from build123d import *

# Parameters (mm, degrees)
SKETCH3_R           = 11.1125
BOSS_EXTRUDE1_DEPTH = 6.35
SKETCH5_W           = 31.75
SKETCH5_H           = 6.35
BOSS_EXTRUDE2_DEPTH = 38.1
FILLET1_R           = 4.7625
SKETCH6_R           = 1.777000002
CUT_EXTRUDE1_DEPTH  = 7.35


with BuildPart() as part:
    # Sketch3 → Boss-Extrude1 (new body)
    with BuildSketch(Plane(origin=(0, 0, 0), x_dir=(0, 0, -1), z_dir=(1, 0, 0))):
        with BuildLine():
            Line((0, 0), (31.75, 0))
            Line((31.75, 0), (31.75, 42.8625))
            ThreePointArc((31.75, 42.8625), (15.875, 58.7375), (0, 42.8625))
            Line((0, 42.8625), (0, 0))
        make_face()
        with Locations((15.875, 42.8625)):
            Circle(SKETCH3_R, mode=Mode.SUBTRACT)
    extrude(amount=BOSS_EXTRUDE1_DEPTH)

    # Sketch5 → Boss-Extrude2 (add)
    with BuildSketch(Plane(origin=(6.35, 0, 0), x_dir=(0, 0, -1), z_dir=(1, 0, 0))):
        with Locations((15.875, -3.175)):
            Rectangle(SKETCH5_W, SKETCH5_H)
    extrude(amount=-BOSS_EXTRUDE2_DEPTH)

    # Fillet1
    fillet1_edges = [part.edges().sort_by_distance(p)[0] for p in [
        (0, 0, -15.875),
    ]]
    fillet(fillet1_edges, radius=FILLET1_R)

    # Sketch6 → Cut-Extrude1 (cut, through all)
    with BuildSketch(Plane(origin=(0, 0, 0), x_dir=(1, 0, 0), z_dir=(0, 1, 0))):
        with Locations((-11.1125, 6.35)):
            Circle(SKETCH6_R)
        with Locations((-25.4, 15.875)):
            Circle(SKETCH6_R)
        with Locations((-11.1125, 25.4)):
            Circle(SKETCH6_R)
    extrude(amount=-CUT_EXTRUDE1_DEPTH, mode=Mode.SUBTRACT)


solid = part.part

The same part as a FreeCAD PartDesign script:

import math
import FreeCAD as App
import Part
import Sketcher
Q = App.Units.Quantity


def edges_at(feature, points):
    """Names of the edges that pass closest to the given points."""
    edges = feature.Shape.Edges
    near = lambda p: min(range(len(edges)), key=lambda i: edges[i].distToShape(Part.Vertex(*p))[0])
    return sorted({f"Edge{near(p) + 1}" for p in points})


def add_polygon(sketch, points):
    """Adds a closed chain of lines whose ends are joined by coincident constraints."""
    first, n = sketch.GeometryCount, len(points)
    for a, b in zip(points, points[1:] + points[:1]):
        sketch.addGeometry(Part.LineSegment(App.Vector(*a, 0), App.Vector(*b, 0)), False)
    for i in range(n):
        sketch.addConstraint(Sketcher.Constraint("Coincident", first + i, 2, first + (i + 1) % n, 1))

doc = App.newDocument("Part")
body = doc.addObject("PartDesign::Body", "Body")

# Sketch on YZ plane
sketch1 = doc.addObject("Sketcher::SketchObject", "Sketch")
body.addObject(sketch1)
sketch1.AttachmentSupport = (doc.YZ_Plane, [""])
sketch1.MapMode = "FlatFace"
sketch1.addGeometry(Part.LineSegment(App.Vector(0, 0, 0), App.Vector(0, -32, 0)), False)
sketch1.addGeometry(Part.LineSegment(App.Vector(0, -32, 0), App.Vector(43, -32, 0)), False)
sketch1.addGeometry(Part.ArcOfCircle(Part.Circle(App.Vector(43, -16, 0), App.Vector(0, 0, 1), 16), math.radians(-90), math.radians(90)), False)
sketch1.addGeometry(Part.LineSegment(App.Vector(43, 0, 0), App.Vector(0, 0, 0)), False)
sketch1.addGeometry(Part.Circle(App.Vector(43, -16, 0), App.Vector(0, 0, 1), 11), False)
sketch1.addConstraint(Sketcher.Constraint("Coincident", 0, 2, 1, 1))
sketch1.addConstraint(Sketcher.Constraint("Tangent", 1, 2, 2, 1))
sketch1.addConstraint(Sketcher.Constraint("Tangent", 2, 2, 3, 1))
sketch1.addConstraint(Sketcher.Constraint("Coincident", 3, 2, 0, 1))
sketch1.addConstraint(Sketcher.Constraint("Vertical", 0))
sketch1.addConstraint(Sketcher.Constraint("Horizontal", 1))
sketch1.addConstraint(Sketcher.Constraint("Horizontal", 3))
sketch1.addConstraint(Sketcher.Constraint("Coincident", 3, 2, -1, 1))
sketch1.addConstraint(Sketcher.Constraint("Coincident", 4, 3, 2, 3))
sketch1.addConstraint(Sketcher.Constraint("Diameter", 4, Q("0.875 in")))
sketch1.addConstraint(Sketcher.Constraint("Radius", 2, Q("0.625 in")))
sketch1.addConstraint(Sketcher.Constraint("DistanceX", 1, 1, 1, 2, Q("1.6875 in")))
pad1 = doc.addObject("PartDesign::Pad", "Pad")
body.addObject(pad1)
pad1.Profile = sketch1
pad1.Length = Q("0.25 in")

# Sketch on YZ plane
sketch2 = doc.addObject("Sketcher::SketchObject", "Sketch001")
body.addObject(sketch2)
sketch2.AttachmentSupport = (doc.YZ_Plane, [""])
sketch2.MapMode = "FlatFace"
sketch2.AttachmentOffset = App.Placement(App.Vector(0, 0, 0.25 * 25.4), App.Rotation())
add_polygon(sketch2, [(0, 0), (-6, 0), (-6, -32), (0, -32)])  # lines 0-3
sketch2.addConstraint(Sketcher.Constraint("Horizontal", 0))
sketch2.addConstraint(Sketcher.Constraint("Vertical", 1))
sketch2.addConstraint(Sketcher.Constraint("Horizontal", 2))
sketch2.addConstraint(Sketcher.Constraint("Vertical", 3))
sketch2.addConstraint(Sketcher.Constraint("Coincident", 3, 2, -1, 1))
sketch2.addConstraint(Sketcher.Constraint("DistanceX", 0, 2, 0, 1, Q("0.25 in")))
sketch2.addConstraint(Sketcher.Constraint("DistanceY", 1, 2, 1, 1, Q("1.25 in")))
pad2 = doc.addObject("PartDesign::Pad", "Pad001")
body.addObject(pad2)
pad2.Profile = sketch2
pad2.Length = Q("1.5 in")
pad2.Reversed = True
doc.recompute()

fillet = doc.addObject("PartDesign::Fillet", "Fillet")
body.addObject(fillet)
fillet.Base = (pad2, edges_at(pad2, [(0, 0, -15.875)]))
fillet.Radius = Q("0.1875 in")

# Sketch on XZ plane
sketch3 = doc.addObject("Sketcher::SketchObject", "Sketch002")
body.addObject(sketch3)
sketch3.AttachmentSupport = (doc.XZ_Plane, [""])
sketch3.MapMode = "FlatFace"
sketch3.addGeometry(Part.Circle(App.Vector(-11.1, -6.3, 0), App.Vector(0, 0, 1), 1.8), False)
sketch3.addGeometry(Part.Circle(App.Vector(-25.4, -15.9, 0), App.Vector(0, 0, 1), 1.8), False)
sketch3.addGeometry(Part.Circle(App.Vector(-11.1, -25.4, 0), App.Vector(0, 0, 1), 1.8), False)
sketch3.addConstraint(Sketcher.Constraint("Equal", 0, 1))
sketch3.addConstraint(Sketcher.Constraint("Equal", 1, 2))
sketch3.addConstraint(Sketcher.Constraint("Vertical", 0, 3, 2, 3))
sketch3.addConstraint(Sketcher.Constraint("DistanceX", 1, 3, -1, 1, Q("1 in")))
sketch3.addConstraint(Sketcher.Constraint("DistanceY", 2, 3, -1, 1, Q("1 in")))
sketch3.addConstraint(Sketcher.Constraint("Diameter", 0, 3.554))
sketch3.addConstraint(Sketcher.Constraint("DistanceY", 0, 3, -1, 1, Q("0.25 in")))
sketch3.addConstraint(Sketcher.Constraint("DistanceX", 0, 3, -1, 1, Q("0.4375 in")))
sketch3.addConstraint(Sketcher.Constraint("DistanceY", 1, 3, -1, 1, Q("0.625 in")))
pocket1 = doc.addObject("PartDesign::Pocket", "Pocket")
body.addObject(pocket1)
pocket1.Profile = sketch3
pocket1.Type = "ThroughAll"
pocket1.Reversed = True

doc.recompute()
